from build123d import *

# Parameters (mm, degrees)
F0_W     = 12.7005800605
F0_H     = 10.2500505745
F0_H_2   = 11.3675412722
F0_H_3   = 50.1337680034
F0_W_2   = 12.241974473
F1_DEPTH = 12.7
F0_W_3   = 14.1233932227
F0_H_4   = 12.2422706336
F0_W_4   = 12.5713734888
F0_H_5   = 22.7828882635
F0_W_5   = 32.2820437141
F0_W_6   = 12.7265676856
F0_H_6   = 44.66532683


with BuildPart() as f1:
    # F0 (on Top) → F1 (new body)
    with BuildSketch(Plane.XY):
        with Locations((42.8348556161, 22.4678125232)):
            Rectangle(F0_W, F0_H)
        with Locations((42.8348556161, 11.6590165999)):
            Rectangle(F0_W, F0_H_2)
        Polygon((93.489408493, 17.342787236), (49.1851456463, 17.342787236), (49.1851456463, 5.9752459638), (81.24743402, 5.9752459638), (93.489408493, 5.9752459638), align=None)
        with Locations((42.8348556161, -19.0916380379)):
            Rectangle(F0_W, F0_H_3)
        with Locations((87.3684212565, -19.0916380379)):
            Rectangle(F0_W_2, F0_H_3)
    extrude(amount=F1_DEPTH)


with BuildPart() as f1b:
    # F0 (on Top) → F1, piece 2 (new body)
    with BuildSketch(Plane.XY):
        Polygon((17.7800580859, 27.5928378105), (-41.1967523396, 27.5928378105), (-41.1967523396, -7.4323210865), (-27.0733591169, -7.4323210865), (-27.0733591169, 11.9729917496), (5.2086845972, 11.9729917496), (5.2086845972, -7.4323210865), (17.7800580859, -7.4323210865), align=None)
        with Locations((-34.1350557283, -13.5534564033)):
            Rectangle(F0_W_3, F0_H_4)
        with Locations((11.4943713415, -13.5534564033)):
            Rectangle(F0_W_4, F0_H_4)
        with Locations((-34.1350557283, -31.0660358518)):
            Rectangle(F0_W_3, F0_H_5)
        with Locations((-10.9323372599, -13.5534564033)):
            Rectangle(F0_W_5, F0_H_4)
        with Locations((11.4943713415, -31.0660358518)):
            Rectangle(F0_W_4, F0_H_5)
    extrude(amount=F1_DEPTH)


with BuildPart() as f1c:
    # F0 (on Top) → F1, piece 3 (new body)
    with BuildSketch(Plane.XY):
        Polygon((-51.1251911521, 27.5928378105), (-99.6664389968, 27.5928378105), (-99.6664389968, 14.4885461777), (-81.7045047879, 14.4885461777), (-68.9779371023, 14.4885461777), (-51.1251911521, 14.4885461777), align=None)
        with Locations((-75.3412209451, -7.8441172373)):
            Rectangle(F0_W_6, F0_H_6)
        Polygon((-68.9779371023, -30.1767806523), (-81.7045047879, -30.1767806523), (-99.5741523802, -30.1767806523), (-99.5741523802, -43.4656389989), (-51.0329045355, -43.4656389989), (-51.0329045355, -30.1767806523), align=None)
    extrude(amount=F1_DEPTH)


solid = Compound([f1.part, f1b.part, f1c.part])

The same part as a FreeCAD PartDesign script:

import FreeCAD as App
import Part
import Sketcher
Q = App.Units.Quantity


def add_polygon(sketch, points):
    """Adds a closed chain of lines whose ends are joined by coincident constraints."""
    first, n = sketch.GeometryCount, len(points)
    for a, b in zip(points, points[1:] + points[:1]):
        sketch.addGeometry(Part.LineSegment(App.Vector(*a, 0), App.Vector(*b, 0)), False)
    for i in range(n):
        sketch.addConstraint(Sketcher.Constraint("Coincident", first + i, 2, first + (i + 1) % n, 1))

doc = App.newDocument("Part")
body = doc.addObject("PartDesign::Body", "Body")

# Sketch on XY plane
sketch1 = body.newObject("Sketcher::SketchObject", "Sketch")
sketch1.AttachmentSupport = (doc.getObject("XY_Plane"), [""])
sketch1.MapMode = "FlatFace"
add_polygon(sketch1, [(36.484566, 27.592838), (36.484566, -44.158522), (49.185146, -44.158522), (49.185146, 5.975246), (81.247434, 5.975246), (81.247434, -44.158522), (93.489408, -44.158522), (93.489408, 17.342787), (49.185146, 17.342787), (49.185146, 27.592838)])  # lines 0-9
sketch1.addConstraint(Sketcher.Constraint("Vertical", 0))
sketch1.addConstraint(Sketcher.Constraint("Horizontal", 1))
sketch1.addConstraint(Sketcher.Constraint("Vertical", 2))
sketch1.addConstraint(Sketcher.Constraint("Horizontal", 3))
sketch1.addConstraint(Sketcher.Constraint("Vertical", 4))
sketch1.addConstraint(Sketcher.Constraint("Horizontal", 5))
sketch1.addConstraint(Sketcher.Constraint("Vertical", 6))
sketch1.addConstraint(Sketcher.Constraint("Horizontal", 7))
sketch1.addConstraint(Sketcher.Constraint("Vertical", 8))
sketch1.addConstraint(Sketcher.Constraint("Horizontal", 9))
sketch1.addConstraint(Sketcher.Constraint("Horizontal", 1, 2, 4, 2))
sketch1.addConstraint(Sketcher.Constraint("Vertical", 2, 2, 7, 2))
sketch1.addConstraint(Sketcher.Constraint("DistanceX", 1, 1, 1, 2, 12.70058))
sketch1.addConstraint(Sketcher.Constraint("DistanceX", 3, 1, 3, 2, 32.062288))
sketch1.addConstraint(Sketcher.Constraint("DistanceY", 0, 2, 0, 1, 71.75136))
sketch1.addConstraint(Sketcher.Constraint("DistanceY", 2, 1, 2, 2, 50.133768))
sketch1.addConstraint(Sketcher.Constraint("DistanceY", 6, 1, 6, 2, 61.501309))
sketch1.addConstraint(Sketcher.Constraint("DistanceX", 5, 1, 5, 2, 12.241974))
sketch1.addConstraint(Sketcher.Constraint("DistanceX", -1, 1, 5, 2, 93.489408))
sketch1.addConstraint(Sketcher.Constraint("DistanceY", 0, 2, -1, 1, 44.158522))
pad1 = body.newObject("PartDesign::Pad", "Pad")
pad1.Profile = sketch1
pad1.Length = Q("0.5 in")
body2 = doc.addObject("PartDesign::Body", "Body001")

# Sketch on XY plane
sketch2 = body2.newObject("Sketcher::SketchObject", "Sketch001")
sketch2.AttachmentSupport = (doc.getObject("XY_Plane001"), [""])
sketch2.MapMode = "FlatFace"
add_polygon(sketch2, [(17.780058, 27.592838), (-41.196752, 27.592838), (-41.196752, -42.45748), (-27.073359, -42.45748), (-27.073359, -19.674592), (5.208685, -19.674592), (5.208685, -42.45748), (17.780058, -42.45748)])  # lines 0-7
add_polygon(sketch2, [(-27.073359, -7.432321), (-27.073359, 11.972992), (5.208685, 11.972992), (5.208685, -7.432321)])  # lines 8-11
sketch2.addConstraint(Sketcher.Constraint("Horizontal", 0))
sketch2.addConstraint(Sketcher.Constraint("Vertical", 1))
sketch2.addConstraint(Sketcher.Constraint("Horizontal", 2))
sketch2.addConstraint(Sketcher.Constraint("Vertical", 3))
sketch2.addConstraint(Sketcher.Constraint("Horizontal", 4))
sketch2.addConstraint(Sketcher.Constraint("Vertical", 5))
sketch2.addConstraint(Sketcher.Constraint("Horizontal", 6))
sketch2.addConstraint(Sketcher.Constraint("Vertical", 7))
sketch2.addConstraint(Sketcher.Constraint("Vertical", 8))
sketch2.addConstraint(Sketcher.Constraint("Horizontal", 9))
sketch2.addConstraint(Sketcher.Constraint("Vertical", 10))
sketch2.addConstraint(Sketcher.Constraint("Horizontal", 11))
sketch2.addConstraint(Sketcher.Constraint("Horizontal", 2, 2, 5, 2))
sketch2.addConstraint(Sketcher.Constraint("Vertical", 3, 2, 8, 2))
sketch2.addConstraint(Sketcher.Constraint("Vertical", 5, 2, 9, 2))
sketch2.addConstraint(Sketcher.Constraint("DistanceX", 0, 2, 0, 1, 58.97681))
sketch2.addConstraint(Sketcher.Constraint("DistanceY", 3, 1, 3, 2, 22.782888))
sketch2.addConstraint(Sketcher.Constraint("DistanceX", 2, 1, 2, 2, 14.123393))
sketch2.addConstraint(Sketcher.Constraint("DistanceX", 4, 1, 4, 2, 32.282044))
sketch2.addConstraint(Sketcher.Constraint("DistanceY", 1, 2, 1, 1, 70.050318))
sketch2.addConstraint(Sketcher.Constraint("DistanceY", 8, 1, 8, 2, 19.405313))
sketch2.addConstraint(Sketcher.Constraint("DistanceY", 1, 2, -1, 1, 42.45748))
sketch2.addConstraint(Sketcher.Constraint("DistanceX", 2, 2, -1, 1, 27.073359))
sketch2.addConstraint(Sketcher.Constraint("DistanceY", -1, 1, 8, 2, 11.972992))
pad2 = body2.newObject("PartDesign::Pad", "Pad001")
pad2.Profile = sketch2
pad2.Length = Q("0.5 in")
body3 = doc.addObject("PartDesign::Body", "Body002")

# Sketch on XY plane
sketch3 = body3.newObject("Sketcher::SketchObject", "Sketch002")
sketch3.AttachmentSupport = (doc.getObject("XY_Plane002"), [""])
sketch3.MapMode = "FlatFace"
add_polygon(sketch3, [(-51.125191, 27.592838), (-99.666439, 27.592838), (-99.666439, 14.488546), (-81.704505, 14.488546), (-81.704505, -30.176781), (-99.574152, -30.176781), (-99.574152, -43.465639), (-51.032905, -43.465639), (-51.032905, -30.176781), (-68.977937, -30.176781), (-68.977937, 14.488546), (-51.125191, 14.488546)])  # lines 0-11
sketch3.addConstraint(Sketcher.Constraint("Horizontal", 0))
sketch3.addConstraint(Sketcher.Constraint("Vertical", 1))
sketch3.addConstraint(Sketcher.Constraint("Horizontal", 2))
sketch3.addConstraint(Sketcher.Constraint("Vertical", 3))
sketch3.addConstraint(Sketcher.Constraint("Horizontal", 4))
sketch3.addConstraint(Sketcher.Constraint("Vertical", 5))
sketch3.addConstraint(Sketcher.Constraint("Horizontal", 6))
sketch3.addConstraint(Sketcher.Constraint("Vertical", 7))
sketch3.addConstraint(Sketcher.Constraint("Horizontal", 8))
sketch3.addConstraint(Sketcher.Constraint("Vertical", 9))
sketch3.addConstraint(Sketcher.Constraint("Horizontal", 10))
sketch3.addConstraint(Sketcher.Constraint("Vertical", 11))
sketch3.addConstraint(Sketcher.Constraint("Horizontal", 4, 2, 7, 2))
sketch3.addConstraint(Sketcher.Constraint("Horizontal", 2, 2, 9, 2))
sketch3.addConstraint(Sketcher.Constraint("Equal", 0, 6))
sketch3.addConstraint(Sketcher.Constraint("DistanceY", 1, 2, 1, 1, 13.104292))
sketch3.addConstraint(Sketcher.Constraint("DistanceY", 5, 2, 5, 1, 13.288858))
sketch3.addConstraint(Sketcher.Constraint("DistanceX", 3, 2, 6, 2, 30.6716))
sketch3.addConstraint(Sketcher.Constraint("DistanceX", 1, 2, 9, 2, 30.688502))
sketch3.addConstraint(Sketcher.Constraint("DistanceX", 0, 2, 0, 1, 48.541248))
sketch3.addConstraint(Sketcher.Constraint("DistanceX", 2, 1, 2, 2, 17.961934))
sketch3.addConstraint(Sketcher.Constraint("DistanceY", 3, 2, 3, 1, 44.665327))
sketch3.addConstraint(Sketcher.Constraint("DistanceX", 0, 2, -1, 1, 99.666439))
sketch3.addConstraint(Sketcher.Constraint("DistanceY", 3, 2, -1, 1, 30.176781))
pad3 = body3.newObject("PartDesign::Pad", "Pad002")
pad3.Profile = sketch3
pad3.Length = Q("0.5 in")

doc.recompute()
